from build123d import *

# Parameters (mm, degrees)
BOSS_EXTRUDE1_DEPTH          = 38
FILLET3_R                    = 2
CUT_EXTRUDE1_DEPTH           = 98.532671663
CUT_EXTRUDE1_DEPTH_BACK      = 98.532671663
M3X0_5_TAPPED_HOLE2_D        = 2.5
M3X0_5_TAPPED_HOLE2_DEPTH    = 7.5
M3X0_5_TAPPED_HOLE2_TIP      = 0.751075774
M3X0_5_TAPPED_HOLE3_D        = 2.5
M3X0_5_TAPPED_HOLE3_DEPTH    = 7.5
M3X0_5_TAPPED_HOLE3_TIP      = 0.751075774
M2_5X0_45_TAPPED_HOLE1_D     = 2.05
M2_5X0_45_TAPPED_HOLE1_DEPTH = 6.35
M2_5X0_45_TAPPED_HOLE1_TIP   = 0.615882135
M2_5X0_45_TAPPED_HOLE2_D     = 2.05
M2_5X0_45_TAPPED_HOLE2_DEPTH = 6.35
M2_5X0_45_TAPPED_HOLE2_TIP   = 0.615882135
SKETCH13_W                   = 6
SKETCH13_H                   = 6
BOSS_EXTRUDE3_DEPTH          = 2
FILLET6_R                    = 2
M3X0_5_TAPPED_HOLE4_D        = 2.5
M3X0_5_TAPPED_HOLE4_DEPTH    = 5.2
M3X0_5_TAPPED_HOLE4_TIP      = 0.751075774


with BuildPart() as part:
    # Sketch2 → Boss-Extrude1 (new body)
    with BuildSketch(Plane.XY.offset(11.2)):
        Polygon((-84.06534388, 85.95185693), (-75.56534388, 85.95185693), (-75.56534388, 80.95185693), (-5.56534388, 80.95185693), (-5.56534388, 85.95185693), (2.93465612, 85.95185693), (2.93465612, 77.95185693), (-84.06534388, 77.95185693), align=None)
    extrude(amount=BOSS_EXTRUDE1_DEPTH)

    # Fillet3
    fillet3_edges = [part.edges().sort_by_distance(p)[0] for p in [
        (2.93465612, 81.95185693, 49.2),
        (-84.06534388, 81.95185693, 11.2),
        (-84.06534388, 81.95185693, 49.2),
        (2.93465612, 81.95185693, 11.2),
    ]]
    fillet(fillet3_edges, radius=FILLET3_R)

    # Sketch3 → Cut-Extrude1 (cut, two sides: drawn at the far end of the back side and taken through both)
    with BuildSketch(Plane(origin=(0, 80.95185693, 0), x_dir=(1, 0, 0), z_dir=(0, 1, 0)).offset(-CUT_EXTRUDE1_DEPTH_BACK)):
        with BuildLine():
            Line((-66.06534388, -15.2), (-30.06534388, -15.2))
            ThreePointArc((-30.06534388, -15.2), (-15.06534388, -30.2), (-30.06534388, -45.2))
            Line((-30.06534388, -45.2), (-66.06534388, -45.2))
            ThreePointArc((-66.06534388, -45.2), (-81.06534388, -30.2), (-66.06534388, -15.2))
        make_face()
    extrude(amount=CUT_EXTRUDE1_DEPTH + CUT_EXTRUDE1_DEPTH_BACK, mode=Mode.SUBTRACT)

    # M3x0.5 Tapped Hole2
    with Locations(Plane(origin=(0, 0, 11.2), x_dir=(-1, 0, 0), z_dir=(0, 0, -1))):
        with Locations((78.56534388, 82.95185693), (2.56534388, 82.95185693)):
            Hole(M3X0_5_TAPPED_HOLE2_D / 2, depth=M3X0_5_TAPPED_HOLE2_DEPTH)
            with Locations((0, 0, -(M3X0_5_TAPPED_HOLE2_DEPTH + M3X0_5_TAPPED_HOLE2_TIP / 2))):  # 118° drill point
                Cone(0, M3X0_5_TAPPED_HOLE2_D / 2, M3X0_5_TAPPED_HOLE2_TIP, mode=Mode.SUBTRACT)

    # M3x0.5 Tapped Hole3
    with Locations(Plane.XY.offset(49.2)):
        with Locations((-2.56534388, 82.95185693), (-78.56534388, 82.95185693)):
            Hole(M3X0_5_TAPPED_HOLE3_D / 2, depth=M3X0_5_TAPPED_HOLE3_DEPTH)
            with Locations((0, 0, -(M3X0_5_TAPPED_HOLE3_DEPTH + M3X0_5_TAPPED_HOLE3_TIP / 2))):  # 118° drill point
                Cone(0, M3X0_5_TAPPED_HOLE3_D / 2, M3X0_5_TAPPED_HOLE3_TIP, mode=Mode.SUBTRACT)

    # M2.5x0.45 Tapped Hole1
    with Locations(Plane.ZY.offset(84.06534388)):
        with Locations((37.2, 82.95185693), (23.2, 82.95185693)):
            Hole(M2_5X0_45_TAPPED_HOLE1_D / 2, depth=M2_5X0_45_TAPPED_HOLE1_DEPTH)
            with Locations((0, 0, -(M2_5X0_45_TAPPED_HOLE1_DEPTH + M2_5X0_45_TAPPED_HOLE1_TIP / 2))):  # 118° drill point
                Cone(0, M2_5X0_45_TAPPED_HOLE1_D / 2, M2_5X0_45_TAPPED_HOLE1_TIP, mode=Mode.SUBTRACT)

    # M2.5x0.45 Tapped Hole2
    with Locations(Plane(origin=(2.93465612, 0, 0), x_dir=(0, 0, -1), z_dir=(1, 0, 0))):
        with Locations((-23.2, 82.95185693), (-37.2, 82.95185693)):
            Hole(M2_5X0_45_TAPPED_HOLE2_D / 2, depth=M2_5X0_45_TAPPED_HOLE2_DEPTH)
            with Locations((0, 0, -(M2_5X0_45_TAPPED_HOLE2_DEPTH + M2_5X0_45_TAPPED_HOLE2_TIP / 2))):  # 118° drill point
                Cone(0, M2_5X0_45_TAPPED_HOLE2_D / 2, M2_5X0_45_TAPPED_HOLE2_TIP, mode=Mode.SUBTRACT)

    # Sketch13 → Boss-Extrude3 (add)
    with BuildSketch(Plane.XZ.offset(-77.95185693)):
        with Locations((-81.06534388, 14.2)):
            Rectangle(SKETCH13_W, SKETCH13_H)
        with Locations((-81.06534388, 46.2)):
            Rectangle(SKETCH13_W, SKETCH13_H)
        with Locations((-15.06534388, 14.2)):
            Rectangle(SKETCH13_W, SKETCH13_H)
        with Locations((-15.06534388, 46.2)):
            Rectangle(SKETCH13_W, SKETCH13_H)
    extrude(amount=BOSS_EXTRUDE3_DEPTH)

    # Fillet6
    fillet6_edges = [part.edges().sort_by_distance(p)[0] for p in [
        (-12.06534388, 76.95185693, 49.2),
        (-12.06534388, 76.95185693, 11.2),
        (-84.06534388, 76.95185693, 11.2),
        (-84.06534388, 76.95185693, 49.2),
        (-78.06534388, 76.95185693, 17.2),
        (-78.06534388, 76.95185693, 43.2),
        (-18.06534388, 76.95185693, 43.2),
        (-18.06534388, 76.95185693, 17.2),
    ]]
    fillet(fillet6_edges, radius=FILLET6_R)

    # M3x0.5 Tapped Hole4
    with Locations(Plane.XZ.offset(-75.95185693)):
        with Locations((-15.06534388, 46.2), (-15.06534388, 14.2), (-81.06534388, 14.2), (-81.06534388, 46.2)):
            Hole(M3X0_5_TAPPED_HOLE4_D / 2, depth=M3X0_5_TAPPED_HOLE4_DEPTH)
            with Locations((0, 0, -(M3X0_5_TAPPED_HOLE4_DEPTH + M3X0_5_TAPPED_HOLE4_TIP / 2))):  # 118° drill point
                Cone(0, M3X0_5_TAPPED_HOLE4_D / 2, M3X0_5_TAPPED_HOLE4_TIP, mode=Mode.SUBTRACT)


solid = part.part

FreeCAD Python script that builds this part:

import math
import FreeCAD as App
import Part
import Sketcher

V = App.Vector


def edges_at(feature, points):
    """Names of the edges that pass closest to the given points."""
    edges = feature.Shape.Edges
    near = lambda p: min(range(len(edges)), key=lambda i: edges[i].distToShape(Part.Vertex(*p))[0])
    return sorted({f"Edge{near(p) + 1}" for p in points})

doc = App.newDocument("Part")
params = doc.addObject("Spreadsheet::Sheet", "Params")
for row, (alias, value) in enumerate([
    ("sketch1_width", "87 mm"),
    ("sketch1_width2", "70 mm"),
    ("sketch1_height", "8 mm"),
    ("sketch1_height2", "5 mm"),
    ("pad1_length", "38 mm"),
    ("fillet_radius", "2 mm"),
    ("sketch2_radius", "15 mm"),
    ("sketch2_width", "36 mm"),
    ("sketch3_diameter", "2.5 mm"),
    ("hole_diameter", "2.5 mm"),
    ("hole_depth", "7.5 mm"),
    ("sketch4_diameter", "2.5 mm"),
    ("hole2_diameter", "2.5 mm"),
    ("hole2_depth", "7.5 mm"),
    ("sketch5_diameter", "2.05 mm"),
    ("hole3_diameter", "2.05 mm"),
    ("hole3_depth", "6.35 mm"),
    ("sketch6_diameter", "2.05 mm"),
    ("hole4_diameter", "2.05 mm"),
    ("hole4_depth", "6.35 mm"),
    ("sketch7_width", "6 mm"),
    ("pad2_length", "2 mm"),
    ("fillet2_radius", "2 mm"),
    ("sketch8_diameter", "2.5 mm"),
    ("hole5_diameter", "2.5 mm"),
    ("hole5_depth", "5.2 mm"),
], start=1):
    params.set(f"A{row}", alias)
    params.set(f"B{row}", "=" + value)
    params.setAlias(f"B{row}", alias)

body = doc.addObject("PartDesign::Body", "Body")

# Sketch on XY plane
sketch1 = doc.addObject("Sketcher::SketchObject", "Sketch")
body.addObject(sketch1)
sketch1.AttachmentSupport = (doc.XY_Plane, [""])
sketch1.MapMode = "FlatFace"
sketch1.AttachmentOffset = App.Placement(V(0, 0, 11.2), App.Rotation())
sketch1.addGeometry(Part.LineSegment(V(-76, 86, 0), V(-84, 86, 0)), False)
sketch1.addGeometry(Part.LineSegment(V(-84, 86, 0), V(-84, 78, 0)), False)
sketch1.addGeometry(Part.LineSegment(V(-84, 78, 0), V(3, 78, 0)), False)
sketch1.addGeometry(Part.LineSegment(V(3, 78, 0), V(3, 86, 0)), False)
sketch1.addGeometry(Part.LineSegment(V(3, 86, 0), V(-6, 86, 0)), False)
sketch1.addGeometry(Part.LineSegment(V(-6, 86, 0), V(-6, 81, 0)), False)
sketch1.addGeometry(Part.LineSegment(V(-6, 81, 0), V(-76, 81, 0)), False)
sketch1.addGeometry(Part.LineSegment(V(-76, 81, 0), V(-76, 86, 0)), False)
sketch1.addConstraint(Sketcher.Constraint("Coincident", 0, 2, 1, 1))
sketch1.addConstraint(Sketcher.Constraint("Coincident", 1, 2, 2, 1))
sketch1.addConstraint(Sketcher.Constraint("Coincident", 2, 2, 3, 1))
sketch1.addConstraint(Sketcher.Constraint("Coincident", 3, 2, 4, 1))
sketch1.addConstraint(Sketcher.Constraint("Coincident", 4, 2, 5, 1))
sketch1.addConstraint(Sketcher.Constraint("Coincident", 5, 2, 6, 1))
sketch1.addConstraint(Sketcher.Constraint("Coincident", 6, 2, 7, 1))
sketch1.addConstraint(Sketcher.Constraint("Coincident", 7, 2, 0, 1))
sketch1.addConstraint(Sketcher.Constraint("Horizontal", 0))
sketch1.addConstraint(Sketcher.Constraint("Vertical", 1))
sketch1.addConstraint(Sketcher.Constraint("Horizontal", 2))
sketch1.addConstraint(Sketcher.Constraint("Vertical", 3))
sketch1.addConstraint(Sketcher.Constraint("Horizontal", 4))
sketch1.addConstraint(Sketcher.Constraint("Vertical", 5))
sketch1.addConstraint(Sketcher.Constraint("Horizontal", 6))
sketch1.addConstraint(Sketcher.Constraint("Vertical", 7))
sketch1.addConstraint(Sketcher.Constraint("Horizontal", 0, 2, 3, 2))
sketch1.addConstraint(Sketcher.Constraint("Equal", 0, 4))
sketch1.addConstraint(Sketcher.Constraint("DistanceX", 2, 1, 2, 2, 87.0))
sketch1.addConstraint(Sketcher.Constraint("DistanceX", 6, 2, 6, 1, 70.0))
sketch1.addConstraint(Sketcher.Constraint("DistanceY", 1, 2, 1, 1, 8.0))
sketch1.addConstraint(Sketcher.Constraint("DistanceY", 5, 2, 5, 1, 5.0))
sketch1.addConstraint(Sketcher.Constraint("DistanceX", 0, 2, -1, 1, 84.065344))
sketch1.addConstraint(Sketcher.Constraint("DistanceY", -1, 1, 0, 2, 85.951857))
sketch1.setExpression("Constraints[18]", "Params.sketch1_width")
sketch1.setExpression("Constraints[19]", "Params.sketch1_width2")
sketch1.setExpression("Constraints[20]", "Params.sketch1_height")
sketch1.setExpression("Constraints[21]", "Params.sketch1_height2")
pad1 = doc.addObject("PartDesign::Pad", "Pad")
body.addObject(pad1)
pad1.Profile = sketch1
pad1.setExpression("Length", "Params.pad1_length")
doc.recompute()

fillet = doc.addObject("PartDesign::Fillet", "Fillet")
body.addObject(fillet)
fillet.Base = (pad1, edges_at(pad1, [
    (2.935, 81.952, 49.2),
    (-84.065, 81.952, 11.2),
    (-84.065, 81.952, 49.2),
    (2.935, 81.952, 11.2),
]))
fillet.setExpression("Radius", "Params.fillet_radius")

# Sketch on XZ plane
sketch2 = doc.addObject("Sketcher::SketchObject", "Sketch001")
body.addObject(sketch2)
sketch2.AttachmentSupport = (doc.XZ_Plane, [""])
sketch2.MapMode = "FlatFace"
sketch2.AttachmentOffset = App.Placement(V(0, 0, -80.951857), App.Rotation())
sketch2.addGeometry(Part.LineSegment(V(-30, 15, 0), V(-66, 15, 0)), False)
sketch2.addGeometry(Part.ArcOfCircle(Part.Circle(V(-66, 30, 0), V(0, 0, 1), 15), math.radians(90), math.radians(270)), False)
sketch2.addGeometry(Part.LineSegment(V(-66, 45, 0), V(-30, 45, 0)), False)
sketch2.addGeometry(Part.ArcOfCircle(Part.Circle(V(-30, 30, 0), V(0, 0, 1), 15), math.radians(-90), math.radians(90)), False)
sketch2.addConstraint(Sketcher.Constraint("Tangent", 0, 2, 1, 2))
sketch2.addConstraint(Sketcher.Constraint("Tangent", 1, 1, 2, 1))
sketch2.addConstraint(Sketcher.Constraint("Tangent", 2, 2, 3, 2))
sketch2.addConstraint(Sketcher.Constraint("Tangent", 3, 1, 0, 1))
sketch2.addConstraint(Sketcher.Constraint("Horizontal", 0))
sketch2.addConstraint(Sketcher.Constraint("Horizontal", 2))
sketch2.addConstraint(Sketcher.Constraint("Radius", 1, 15.0))
sketch2.addConstraint(Sketcher.Constraint("DistanceX", 0, 2, 0, 1, 36.0))
sketch2.addConstraint(Sketcher.Constraint("DistanceY", -1, 1, 1, 3, 30.2))
sketch2.addConstraint(Sketcher.Constraint("DistanceX", 1, 3, -1, 1, 66.065344))
sketch2.setExpression("Constraints[6]", "Params.sketch2_radius")
sketch2.setExpression("Constraints[7]", "Params.sketch2_width")
pocket1 = doc.addObject("PartDesign::Pocket", "Pocket")
body.addObject(pocket1)
pocket1.Profile = sketch2
pocket1.Type = "ThroughAll"
pocket1.Midplane = True

# Sketch on XY plane
sketch3 = doc.addObject("Sketcher::SketchObject", "Sketch002")
body.addObject(sketch3)
sketch3.AttachmentSupport = (doc.XY_Plane, [""])
sketch3.MapMode = "FlatFace"
sketch3.AttachmentOffset = App.Placement(V(0, 0, 11.2), App.Rotation())
sketch3.addGeometry(Part.Circle(V(-78.6, 83, 0), V(0, 0, 1), 1.2), False)
sketch3.addGeometry(Part.Circle(V(-2.6, 83, 0), V(0, 0, 1), 1.2), False)
sketch3.addConstraint(Sketcher.Constraint("Equal", 0, 1))
sketch3.addConstraint(Sketcher.Constraint("Horizontal", 0, 3, 1, 3))
sketch3.addConstraint(Sketcher.Constraint("Diameter", 0, 2.5))
sketch3.addConstraint(Sketcher.Constraint("DistanceX", 0, 3, 1, 3, 76.0))
sketch3.addConstraint(Sketcher.Constraint("DistanceX", 0, 3, -1, 1, 78.565344))
sketch3.addConstraint(Sketcher.Constraint("DistanceY", -1, 1, 0, 3, 82.951857))
sketch3.setExpression("Constraints[2]", "Params.sketch3_diameter")
doc.recompute()
hole = doc.addObject("PartDesign::Hole", "Hole")
body.addObject(hole)
hole.Profile = sketch3
hole.ThreadType = "None"
hole.setExpression("Diameter", "Params.hole_diameter")
hole.DepthType = "Dimension"
hole.setExpression("Depth", "Params.hole_depth")
hole.DrillPoint = "Angled"
hole.DrillPointAngle = 118
hole.Reversed = True

# Sketch on XY plane
sketch4 = doc.addObject("Sketcher::SketchObject", "Sketch003")
body.addObject(sketch4)
sketch4.AttachmentSupport = (doc.XY_Plane, [""])
sketch4.MapMode = "FlatFace"
sketch4.AttachmentOffset = App.Placement(V(0, 0, 49.2), App.Rotation())
sketch4.addGeometry(Part.Circle(V(-2.6, 83, 0), V(0, 0, 1), 1.2), False)
sketch4.addGeometry(Part.Circle(V(-78.6, 83, 0), V(0, 0, 1), 1.2), False)
sketch4.addConstraint(Sketcher.Constraint("Equal", 0, 1))
sketch4.addConstraint(Sketcher.Constraint("Horizontal", 0, 3, 1, 3))
sketch4.addConstraint(Sketcher.Constraint("Diameter", 0, 2.5))
sketch4.addConstraint(Sketcher.Constraint("DistanceX", 1, 3, 0, 3, 76.0))
sketch4.addConstraint(Sketcher.Constraint("DistanceX", 0, 3, -1, 1, 2.565344))
sketch4.addConstraint(Sketcher.Constraint("DistanceY", -1, 1, 0, 3, 82.951857))
sketch4.setExpression("Constraints[2]", "Params.sketch4_diameter")
doc.recompute()
hole2 = doc.addObject("PartDesign::Hole", "Hole001")
body.addObject(hole2)
hole2.Profile = sketch4
hole2.ThreadType = "None"
hole2.setExpression("Diameter", "Params.hole2_diameter")
hole2.DepthType = "Dimension"
hole2.setExpression("Depth", "Params.hole2_depth")
hole2.DrillPoint = "Angled"
hole2.DrillPointAngle = 118

# Sketch on YZ plane
sketch5 = doc.addObject("Sketcher::SketchObject", "Sketch004")
body.addObject(sketch5)
sketch5.AttachmentSupport = (doc.YZ_Plane, [""])
sketch5.MapMode = "FlatFace"
sketch5.AttachmentOffset = App.Placement(V(0, 0, -84.065344), App.Rotation())
sketch5.addGeometry(Part.Circle(V(83, 37.2, 0), V(0, 0, 1), 1), False)
sketch5.addGeometry(Part.Circle(V(83, 23.2, 0), V(0, 0, 1), 1), False)
sketch5.addConstraint(Sketcher.Constraint("Equal", 0, 1))
sketch5.addConstraint(Sketcher.Constraint("Vertical", 0, 3, 1, 3))
sketch5.addConstraint(Sketcher.Constraint("Diameter", 0, 2.05))
sketch5.addConstraint(Sketcher.Constraint("DistanceY", 1, 3, 0, 3, 14.0))
sketch5.addConstraint(Sketcher.Constraint("DistanceY", -1, 1, 0, 3, 37.2))
sketch5.addConstraint(Sketcher.Constraint("DistanceX", -1, 1, 0, 3, 82.951857))
sketch5.setExpression("Constraints[2]", "Params.sketch5_diameter")
doc.recompute()
hole3 = doc.addObject("PartDesign::Hole", "Hole002")
body.addObject(hole3)
hole3.Profile = sketch5
hole3.ThreadType = "None"
hole3.setExpression("Diameter", "Params.hole3_diameter")
hole3.DepthType = "Dimension"
hole3.setExpression("Depth", "Params.hole3_depth")
hole3.DrillPoint = "Angled"
hole3.DrillPointAngle = 118
hole3.Reversed = True

# Sketch on YZ plane
sketch6 = doc.addObject("Sketcher::SketchObject", "Sketch005")
body.addObject(sketch6)
sketch6.AttachmentSupport = (doc.YZ_Plane, [""])
sketch6.MapMode = "FlatFace"
sketch6.AttachmentOffset = App.Placement(V(0, 0, 2.934656), App.Rotation())
sketch6.addGeometry(Part.Circle(V(83, 23.2, 0), V(0, 0, 1), 1), False)
sketch6.addGeometry(Part.Circle(V(83, 37.2, 0), V(0, 0, 1), 1), False)
sketch6.addConstraint(Sketcher.Constraint("Equal", 0, 1))
sketch6.addConstraint(Sketcher.Constraint("Vertical", 0, 3, 1, 3))
sketch6.addConstraint(Sketcher.Constraint("Diameter", 0, 2.05))
sketch6.addConstraint(Sketcher.Constraint("DistanceY", 0, 3, 1, 3, 14.0))
sketch6.addConstraint(Sketcher.Constraint("DistanceY", -1, 1, 0, 3, 23.2))
sketch6.addConstraint(Sketcher.Constraint("DistanceX", -1, 1, 0, 3, 82.951857))
sketch6.setExpression("Constraints[2]", "Params.sketch6_diameter")
doc.recompute()
hole4 = doc.addObject("PartDesign::Hole", "Hole003")
body.addObject(hole4)
hole4.Profile = sketch6
hole4.ThreadType = "None"
hole4.setExpression("Diameter", "Params.hole4_diameter")
hole4.DepthType = "Dimension"
hole4.setExpression("Depth", "Params.hole4_depth")
hole4.DrillPoint = "Angled"
hole4.DrillPointAngle = 118

# Sketch on XZ plane
sketch7 = doc.addObject("Sketcher::SketchObject", "Sketch006")
body.addObject(sketch7)
sketch7.AttachmentSupport = (doc.XZ_Plane, [""])
sketch7.MapMode = "FlatFace"
sketch7.AttachmentOffset = App.Placement(V(0, 0, -77.951857), App.Rotation())
sketch7.addGeometry(Part.LineSegment(V(-84, 17, 0), V(-84, 11, 0)), False)
sketch7.addGeometry(Part.LineSegment(V(-84, 11, 0), V(-78, 11, 0)), False)
sketch7.addGeometry(Part.LineSegment(V(-78, 11, 0), V(-78, 17, 0)), False)
sketch7.addGeometry(Part.LineSegment(V(-78, 17, 0), V(-84, 17, 0)), False)
sketch7.addGeometry(Part.LineSegment(V(-84, 49, 0), V(-84, 43, 0)), False)
sketch7.addGeometry(Part.LineSegment(V(-84, 43, 0), V(-78, 43, 0)), False)
sketch7.addGeometry(Part.LineSegment(V(-78, 43, 0), V(-78, 49, 0)), False)
sketch7.addGeometry(Part.LineSegment(V(-78, 49, 0), V(-84, 49, 0)), False)
sketch7.addGeometry(Part.LineSegment(V(-18, 17, 0), V(-18, 11, 0)), False)
sketch7.addGeometry(Part.LineSegment(V(-18, 11, 0), V(-12, 11, 0)), False)
sketch7.addGeometry(Part.LineSegment(V(-12, 11, 0), V(-12, 17, 0)), False)
sketch7.addGeometry(Part.LineSegment(V(-12, 17, 0), V(-18, 17, 0)), False)
sketch7.addGeometry(Part.LineSegment(V(-18, 49, 0), V(-18, 43, 0)), False)
sketch7.addGeometry(Part.LineSegment(V(-18, 43, 0), V(-12, 43, 0)), False)
sketch7.addGeometry(Part.LineSegment(V(-12, 43, 0), V(-12, 49, 0)), False)
sketch7.addGeometry(Part.LineSegment(V(-12, 49, 0), V(-18, 49, 0)), False)
sketch7.addConstraint(Sketcher.Constraint("Coincident", 0, 2, 1, 1))
sketch7.addConstraint(Sketcher.Constraint("Coincident", 1, 2, 2, 1))
sketch7.addConstraint(Sketcher.Constraint("Coincident", 2, 2, 3, 1))
sketch7.addConstraint(Sketcher.Constraint("Coincident", 3, 2, 0, 1))
sketch7.addConstraint(Sketcher.Constraint("Coincident", 4, 2, 5, 1))
sketch7.addConstraint(Sketcher.Constraint("Coincident", 5, 2, 6, 1))
sketch7.addConstraint(Sketcher.Constraint("Coincident", 6, 2, 7, 1))
sketch7.addConstraint(Sketcher.Constraint("Coincident", 7, 2, 4, 1))
sketch7.addConstraint(Sketcher.Constraint("Coincident", 8, 2, 9, 1))
sketch7.addConstraint(Sketcher.Constraint("Coincident", 9, 2, 10, 1))
sketch7.addConstraint(Sketcher.Constraint("Coincident", 10, 2, 11, 1))
sketch7.addConstraint(Sketcher.Constraint("Coincident", 11, 2, 8, 1))
sketch7.addConstraint(Sketcher.Constraint("Coincident", 12, 2, 13, 1))
sketch7.addConstraint(Sketcher.Constraint("Coincident", 13, 2, 14, 1))
sketch7.addConstraint(Sketcher.Constraint("Coincident", 14, 2, 15, 1))
sketch7.addConstraint(Sketcher.Constraint("Coincident", 15, 2, 12, 1))
sketch7.addConstraint(Sketcher.Constraint("Vertical", 0))
sketch7.addConstraint(Sketcher.Constraint("Horizontal", 1))
sketch7.addConstraint(Sketcher.Constraint("Vertical", 2))
sketch7.addConstraint(Sketcher.Constraint("Horizontal", 3))
sketch7.addConstraint(Sketcher.Constraint("Vertical", 4))
sketch7.addConstraint(Sketcher.Constraint("Horizontal", 5))
sketch7.addConstraint(Sketcher.Constraint("Vertical", 6))
sketch7.addConstraint(Sketcher.Constraint("Horizontal", 7))
sketch7.addConstraint(Sketcher.Constraint("Vertical", 8))
sketch7.addConstraint(Sketcher.Constraint("Horizontal", 9))
sketch7.addConstraint(Sketcher.Constraint("Vertical", 10))
sketch7.addConstraint(Sketcher.Constraint("Horizontal", 11))
sketch7.addConstraint(Sketcher.Constraint("Vertical", 12))
sketch7.addConstraint(Sketcher.Constraint("Horizontal", 13))
sketch7.addConstraint(Sketcher.Constraint("Vertical", 14))
sketch7.addConstraint(Sketcher.Constraint("Horizontal", 15))
sketch7.addConstraint(Sketcher.Constraint("Horizontal", 1, 2, 8, 2))
sketch7.addConstraint(Sketcher.Constraint("Horizontal", 3, 2, 10, 2))
sketch7.addConstraint(Sketcher.Constraint("Horizontal", 5, 2, 12, 2))
sketch7.addConstraint(Sketcher.Constraint("Horizontal", 7, 2, 14, 2))
sketch7.addConstraint(Sketcher.Constraint("Vertical", 3, 2, 4, 2))
sketch7.addConstraint(Sketcher.Constraint("Vertical", 2, 2, 5, 2))
sketch7.addConstraint(Sketcher.Constraint("Vertical", 11, 2, 12, 2))
sketch7.addConstraint(Sketcher.Constraint("Vertical", 10, 2, 13, 2))
sketch7.addConstraint(Sketcher.Constraint("Equal", 7, 9))
sketch7.addConstraint(Sketcher.Constraint("Equal", 15, 0))
sketch7.addConstraint(Sketcher.Constraint("Equal", 2, 4))
sketch7.addConstraint(Sketcher.Constraint("DistanceX", 1, 1, 1, 2, 6.0))
sketch7.addConstraint(Sketcher.Constraint("DistanceY", 3, 2, 4, 2, 26.0))
sketch7.addConstraint(Sketcher.Constraint("DistanceX", 1, 2, 8, 2, 60.0))
sketch7.addConstraint(Sketcher.Constraint("DistanceY", -1, 1, 0, 2, 11.2))
sketch7.addConstraint(Sketcher.Constraint("DistanceX", 0, 2, -1, 1, 84.065344))
sketch7.setExpression("Constraints[43]", "Params.sketch7_width")
pad2 = doc.addObject("PartDesign::Pad", "Pad001")
body.addObject(pad2)
pad2.Profile = sketch7
pad2.setExpression("Length", "Params.pad2_length")
doc.recompute()

fillet2 = doc.addObject("PartDesign::Fillet", "Fillet001")
body.addObject(fillet2)
fillet2.Base = (pad2, edges_at(pad2, [
    (-12.065, 76.952, 49.2),
    (-12.065, 76.952, 11.2),
    (-84.065, 76.952, 11.2),
    (-84.065, 76.952, 49.2),
    (-78.065, 76.952, 17.2),
    (-78.065, 76.952, 43.2),
    (-18.065, 76.952, 43.2),
    (-18.065, 76.952, 17.2),
]))
fillet2.setExpression("Radius", "Params.fillet2_radius")

# Sketch on XZ plane
sketch8 = doc.addObject("Sketcher::SketchObject", "Sketch007")
body.addObject(sketch8)
sketch8.AttachmentSupport = (doc.XZ_Plane, [""])
sketch8.MapMode = "FlatFace"
sketch8.AttachmentOffset = App.Placement(V(0, 0, -75.951857), App.Rotation())
sketch8.addGeometry(Part.Circle(V(-15.1, 46.2, 0), V(0, 0, 1), 1.2), False)
sketch8.addGeometry(Part.Circle(V(-15.1, 14.2, 0), V(0, 0, 1), 1.2), False)
sketch8.addGeometry(Part.Circle(V(-81.1, 14.2, 0), V(0, 0, 1), 1.2), False)
sketch8.addGeometry(Part.Circle(V(-81.1, 46.2, 0), V(0, 0, 1), 1.2), False)
sketch8.addConstraint(Sketcher.Constraint("Equal", 0, 1))
sketch8.addConstraint(Sketcher.Constraint("Equal", 1, 2))
sketch8.addConstraint(Sketcher.Constraint("Equal", 2, 3))
sketch8.addConstraint(Sketcher.Constraint("Horizontal", 1, 3, 2, 3))
sketch8.addConstraint(Sketcher.Constraint("Horizontal", 0, 3, 3, 3))
sketch8.addConstraint(Sketcher.Constraint("Vertical", 0, 3, 1, 3))
sketch8.addConstraint(Sketcher.Constraint("Vertical", 2, 3, 3, 3))
sketch8.addConstraint(Sketcher.Constraint("Diameter", 0, 2.5))
sketch8.addConstraint(Sketcher.Constraint("DistanceY", 1, 3, 0, 3, 32.0))
sketch8.addConstraint(Sketcher.Constraint("DistanceX", 2, 3, 1, 3, 66.0))
sketch8.addConstraint(Sketcher.Constraint("DistanceY", -1, 1, 0, 3, 46.2))
sketch8.addConstraint(Sketcher.Constraint("DistanceX", 0, 3, -1, 1, 15.065344))
sketch8.setExpression("Constraints[7]", "Params.sketch8_diameter")
doc.recompute()
hole5 = doc.addObject("PartDesign::Hole", "Hole004")
body.addObject(hole5)
hole5.Profile = sketch8
hole5.ThreadType = "None"
hole5.setExpression("Diameter", "Params.hole5_diameter")
hole5.DepthType = "Dimension"
hole5.setExpression("Depth", "Params.hole5_depth")
hole5.DrillPoint = "Angled"
hole5.DrillPointAngle = 118

doc.recompute()
